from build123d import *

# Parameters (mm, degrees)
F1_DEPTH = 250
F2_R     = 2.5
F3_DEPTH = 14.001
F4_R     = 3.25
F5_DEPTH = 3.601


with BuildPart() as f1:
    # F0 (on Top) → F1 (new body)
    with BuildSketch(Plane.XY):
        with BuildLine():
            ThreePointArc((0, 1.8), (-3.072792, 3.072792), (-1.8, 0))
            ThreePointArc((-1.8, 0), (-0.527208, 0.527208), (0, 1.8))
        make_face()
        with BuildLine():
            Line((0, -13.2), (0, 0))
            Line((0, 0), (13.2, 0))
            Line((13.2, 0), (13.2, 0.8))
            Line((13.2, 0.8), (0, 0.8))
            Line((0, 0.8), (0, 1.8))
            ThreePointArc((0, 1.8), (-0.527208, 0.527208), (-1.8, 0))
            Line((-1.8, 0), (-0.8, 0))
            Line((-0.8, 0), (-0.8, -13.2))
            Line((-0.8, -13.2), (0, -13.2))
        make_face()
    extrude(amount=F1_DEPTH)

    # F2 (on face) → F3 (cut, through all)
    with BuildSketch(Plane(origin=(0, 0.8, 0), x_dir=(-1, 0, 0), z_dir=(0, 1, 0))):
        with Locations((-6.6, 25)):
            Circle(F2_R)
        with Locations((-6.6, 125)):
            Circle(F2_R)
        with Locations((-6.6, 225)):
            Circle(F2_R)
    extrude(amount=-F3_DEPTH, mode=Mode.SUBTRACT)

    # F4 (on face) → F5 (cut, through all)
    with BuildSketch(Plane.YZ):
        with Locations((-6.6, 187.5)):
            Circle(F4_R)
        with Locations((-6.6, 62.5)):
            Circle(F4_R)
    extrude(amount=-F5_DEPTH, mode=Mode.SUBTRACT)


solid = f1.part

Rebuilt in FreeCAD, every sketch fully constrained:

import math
import FreeCAD as App
import Part
import Sketcher
from FreeCAD import Vector

doc = App.newDocument("Part")
body = doc.addObject("PartDesign::Body", "Body")

# Sketch on XY plane
sketch1 = body.newObject("Sketcher::SketchObject", "Sketch")
sketch1.AttachmentSupport = (doc.getObject("XY_Plane"), [""])
sketch1.MapMode = "FlatFace"
sketch1.addGeometry([
    Part.ArcOfCircle(Part.Circle(Vector(-1.8, 1.8, 0), Vector(0, 0, 1), 1.8), math.radians(0), math.radians(270)),  # 0
    Part.LineSegment(Vector(-1.8, 0, 0), Vector(-0.8, 0, 0)),  # 1
    Part.LineSegment(Vector(-0.8, 0, 0), Vector(-0.8, -13.2, 0)),  # 2
    Part.LineSegment(Vector(-0.8, -13.2, 0), Vector(0, -13.2, 0)),  # 3
    Part.LineSegment(Vector(0, -13.2, 0), Vector(0, 0, 0)),  # 4
    Part.LineSegment(Vector(0, 0, 0), Vector(13.2, 0, 0)),  # 5
    Part.LineSegment(Vector(13.2, 0, 0), Vector(13.2, 0.8, 0)),  # 6
    Part.LineSegment(Vector(13.2, 0.8, 0), Vector(0, 0.8, 0)),  # 7
    Part.LineSegment(Vector(0, 0.8, 0), Vector(0, 1.8, 0)),  # 8
], False)
sketch1.addConstraint([
    Sketcher.Constraint("Tangent", 0, 2, 1, 1),
    Sketcher.Constraint("Coincident", 1, 2, 2, 1),
    Sketcher.Constraint("Coincident", 2, 2, 3, 1),
    Sketcher.Constraint("Coincident", 3, 2, 4, 1),
    Sketcher.Constraint("Coincident", 4, 2, 5, 1),
    Sketcher.Constraint("Coincident", 5, 2, 6, 1),
    Sketcher.Constraint("Coincident", 6, 2, 7, 1),
    Sketcher.Constraint("Coincident", 7, 2, 8, 1),
    Sketcher.Constraint("Tangent", 8, 2, 0, 1),
    Sketcher.Constraint("Horizontal", 1),
    Sketcher.Constraint("Vertical", 2),
    Sketcher.Constraint("Horizontal", 3),
    Sketcher.Constraint("Vertical", 4),
    Sketcher.Constraint("Horizontal", 5),
    Sketcher.Constraint("Vertical", 6),
    Sketcher.Constraint("Horizontal", 7),
    Sketcher.Constraint("Vertical", 8),
    Sketcher.Constraint("Coincident", 4, 2, -1, 1),
    Sketcher.Constraint("PointOnObject", 0, 2, -1),
    Sketcher.Constraint("PointOnObject", 7, 2, -2),
    Sketcher.Constraint("Equal", 7, 2),
    Sketcher.Constraint("Equal", 3, 6),
    Sketcher.Constraint("Radius", 0, 1.8),
    Sketcher.Constraint("DistanceX", 1, 1, 1, 2, 1.0),
    Sketcher.Constraint("DistanceX", 5, 1, 5, 2, 13.2),
])
pad1 = body.newObject("PartDesign::Pad", "Pad")
pad1.Profile = sketch1
pad1.Length = 250

# Sketch on XZ plane
sketch2 = body.newObject("Sketcher::SketchObject", "Sketch001")
sketch2.AttachmentSupport = (doc.getObject("XZ_Plane"), [""])
sketch2.MapMode = "FlatFace"
sketch2.AttachmentOffset = App.Placement(Vector(0, 0, -0.8), App.Rotation())
sketch2.addGeometry([
    Part.Circle(Vector(6.6, 25, 0), Vector(0, 0, 1), 2.5),
    Part.Circle(Vector(6.6, 125, 0), Vector(0, 0, 1), 2.5),
    Part.Circle(Vector(6.6, 225, 0), Vector(0, 0, 1), 2.5),
], False)
sketch2.addConstraint([
    Sketcher.Constraint("Equal", 0, 1),
    Sketcher.Constraint("Equal", 1, 2),
    Sketcher.Constraint("Vertical", 0, 3, 1, 3),
    Sketcher.Constraint("Vertical", 1, 3, 2, 3),
    Sketcher.Constraint("Diameter", 0, 5.0),
    Sketcher.Constraint("DistanceY", -1, 1, 0, 3, 25.0),
    Sketcher.Constraint("DistanceY", -1, 1, 1, 3, 125.0),
    Sketcher.Constraint("DistanceY", -1, 1, 2, 3, 225.0),
    Sketcher.Constraint("DistanceX", -1, 1, 0, 3, 6.6),
])
pocket1 = body.newObject("PartDesign::Pocket", "Pocket")
pocket1.Profile = sketch2
pocket1.Type = "ThroughAll"
pocket1.Reversed = True

# Sketch on YZ plane
sketch3 = body.newObject("Sketcher::SketchObject", "Sketch002")
sketch3.AttachmentSupport = (doc.getObject("YZ_Plane"), [""])
sketch3.MapMode = "FlatFace"
sketch3.addGeometry([
    Part.Circle(Vector(-6.6, 187.5, 0), Vector(0, 0, 1), 3.2),
    Part.Circle(Vector(-6.6, 62.5, 0), Vector(0, 0, 1), 3.2),
], False)
sketch3.addConstraint([
    Sketcher.Constraint("Equal", 0, 1),
    Sketcher.Constraint("Vertical", 0, 3, 1, 3),
    Sketcher.Constraint("Diameter", 0, 6.5),
    Sketcher.Constraint("DistanceY", 1, 3, 0, 3, 125.0),
    Sketcher.Constraint("DistanceX", 0, 3, -1, 1, 6.6),
    Sketcher.Constraint("DistanceY", -1, 1, 0, 3, 187.5),
])
pocket2 = body.newObject("PartDesign::Pocket", "Pocket001")
pocket2.Profile = sketch3
pocket2.Type = "ThroughAll"

doc.recompute()
